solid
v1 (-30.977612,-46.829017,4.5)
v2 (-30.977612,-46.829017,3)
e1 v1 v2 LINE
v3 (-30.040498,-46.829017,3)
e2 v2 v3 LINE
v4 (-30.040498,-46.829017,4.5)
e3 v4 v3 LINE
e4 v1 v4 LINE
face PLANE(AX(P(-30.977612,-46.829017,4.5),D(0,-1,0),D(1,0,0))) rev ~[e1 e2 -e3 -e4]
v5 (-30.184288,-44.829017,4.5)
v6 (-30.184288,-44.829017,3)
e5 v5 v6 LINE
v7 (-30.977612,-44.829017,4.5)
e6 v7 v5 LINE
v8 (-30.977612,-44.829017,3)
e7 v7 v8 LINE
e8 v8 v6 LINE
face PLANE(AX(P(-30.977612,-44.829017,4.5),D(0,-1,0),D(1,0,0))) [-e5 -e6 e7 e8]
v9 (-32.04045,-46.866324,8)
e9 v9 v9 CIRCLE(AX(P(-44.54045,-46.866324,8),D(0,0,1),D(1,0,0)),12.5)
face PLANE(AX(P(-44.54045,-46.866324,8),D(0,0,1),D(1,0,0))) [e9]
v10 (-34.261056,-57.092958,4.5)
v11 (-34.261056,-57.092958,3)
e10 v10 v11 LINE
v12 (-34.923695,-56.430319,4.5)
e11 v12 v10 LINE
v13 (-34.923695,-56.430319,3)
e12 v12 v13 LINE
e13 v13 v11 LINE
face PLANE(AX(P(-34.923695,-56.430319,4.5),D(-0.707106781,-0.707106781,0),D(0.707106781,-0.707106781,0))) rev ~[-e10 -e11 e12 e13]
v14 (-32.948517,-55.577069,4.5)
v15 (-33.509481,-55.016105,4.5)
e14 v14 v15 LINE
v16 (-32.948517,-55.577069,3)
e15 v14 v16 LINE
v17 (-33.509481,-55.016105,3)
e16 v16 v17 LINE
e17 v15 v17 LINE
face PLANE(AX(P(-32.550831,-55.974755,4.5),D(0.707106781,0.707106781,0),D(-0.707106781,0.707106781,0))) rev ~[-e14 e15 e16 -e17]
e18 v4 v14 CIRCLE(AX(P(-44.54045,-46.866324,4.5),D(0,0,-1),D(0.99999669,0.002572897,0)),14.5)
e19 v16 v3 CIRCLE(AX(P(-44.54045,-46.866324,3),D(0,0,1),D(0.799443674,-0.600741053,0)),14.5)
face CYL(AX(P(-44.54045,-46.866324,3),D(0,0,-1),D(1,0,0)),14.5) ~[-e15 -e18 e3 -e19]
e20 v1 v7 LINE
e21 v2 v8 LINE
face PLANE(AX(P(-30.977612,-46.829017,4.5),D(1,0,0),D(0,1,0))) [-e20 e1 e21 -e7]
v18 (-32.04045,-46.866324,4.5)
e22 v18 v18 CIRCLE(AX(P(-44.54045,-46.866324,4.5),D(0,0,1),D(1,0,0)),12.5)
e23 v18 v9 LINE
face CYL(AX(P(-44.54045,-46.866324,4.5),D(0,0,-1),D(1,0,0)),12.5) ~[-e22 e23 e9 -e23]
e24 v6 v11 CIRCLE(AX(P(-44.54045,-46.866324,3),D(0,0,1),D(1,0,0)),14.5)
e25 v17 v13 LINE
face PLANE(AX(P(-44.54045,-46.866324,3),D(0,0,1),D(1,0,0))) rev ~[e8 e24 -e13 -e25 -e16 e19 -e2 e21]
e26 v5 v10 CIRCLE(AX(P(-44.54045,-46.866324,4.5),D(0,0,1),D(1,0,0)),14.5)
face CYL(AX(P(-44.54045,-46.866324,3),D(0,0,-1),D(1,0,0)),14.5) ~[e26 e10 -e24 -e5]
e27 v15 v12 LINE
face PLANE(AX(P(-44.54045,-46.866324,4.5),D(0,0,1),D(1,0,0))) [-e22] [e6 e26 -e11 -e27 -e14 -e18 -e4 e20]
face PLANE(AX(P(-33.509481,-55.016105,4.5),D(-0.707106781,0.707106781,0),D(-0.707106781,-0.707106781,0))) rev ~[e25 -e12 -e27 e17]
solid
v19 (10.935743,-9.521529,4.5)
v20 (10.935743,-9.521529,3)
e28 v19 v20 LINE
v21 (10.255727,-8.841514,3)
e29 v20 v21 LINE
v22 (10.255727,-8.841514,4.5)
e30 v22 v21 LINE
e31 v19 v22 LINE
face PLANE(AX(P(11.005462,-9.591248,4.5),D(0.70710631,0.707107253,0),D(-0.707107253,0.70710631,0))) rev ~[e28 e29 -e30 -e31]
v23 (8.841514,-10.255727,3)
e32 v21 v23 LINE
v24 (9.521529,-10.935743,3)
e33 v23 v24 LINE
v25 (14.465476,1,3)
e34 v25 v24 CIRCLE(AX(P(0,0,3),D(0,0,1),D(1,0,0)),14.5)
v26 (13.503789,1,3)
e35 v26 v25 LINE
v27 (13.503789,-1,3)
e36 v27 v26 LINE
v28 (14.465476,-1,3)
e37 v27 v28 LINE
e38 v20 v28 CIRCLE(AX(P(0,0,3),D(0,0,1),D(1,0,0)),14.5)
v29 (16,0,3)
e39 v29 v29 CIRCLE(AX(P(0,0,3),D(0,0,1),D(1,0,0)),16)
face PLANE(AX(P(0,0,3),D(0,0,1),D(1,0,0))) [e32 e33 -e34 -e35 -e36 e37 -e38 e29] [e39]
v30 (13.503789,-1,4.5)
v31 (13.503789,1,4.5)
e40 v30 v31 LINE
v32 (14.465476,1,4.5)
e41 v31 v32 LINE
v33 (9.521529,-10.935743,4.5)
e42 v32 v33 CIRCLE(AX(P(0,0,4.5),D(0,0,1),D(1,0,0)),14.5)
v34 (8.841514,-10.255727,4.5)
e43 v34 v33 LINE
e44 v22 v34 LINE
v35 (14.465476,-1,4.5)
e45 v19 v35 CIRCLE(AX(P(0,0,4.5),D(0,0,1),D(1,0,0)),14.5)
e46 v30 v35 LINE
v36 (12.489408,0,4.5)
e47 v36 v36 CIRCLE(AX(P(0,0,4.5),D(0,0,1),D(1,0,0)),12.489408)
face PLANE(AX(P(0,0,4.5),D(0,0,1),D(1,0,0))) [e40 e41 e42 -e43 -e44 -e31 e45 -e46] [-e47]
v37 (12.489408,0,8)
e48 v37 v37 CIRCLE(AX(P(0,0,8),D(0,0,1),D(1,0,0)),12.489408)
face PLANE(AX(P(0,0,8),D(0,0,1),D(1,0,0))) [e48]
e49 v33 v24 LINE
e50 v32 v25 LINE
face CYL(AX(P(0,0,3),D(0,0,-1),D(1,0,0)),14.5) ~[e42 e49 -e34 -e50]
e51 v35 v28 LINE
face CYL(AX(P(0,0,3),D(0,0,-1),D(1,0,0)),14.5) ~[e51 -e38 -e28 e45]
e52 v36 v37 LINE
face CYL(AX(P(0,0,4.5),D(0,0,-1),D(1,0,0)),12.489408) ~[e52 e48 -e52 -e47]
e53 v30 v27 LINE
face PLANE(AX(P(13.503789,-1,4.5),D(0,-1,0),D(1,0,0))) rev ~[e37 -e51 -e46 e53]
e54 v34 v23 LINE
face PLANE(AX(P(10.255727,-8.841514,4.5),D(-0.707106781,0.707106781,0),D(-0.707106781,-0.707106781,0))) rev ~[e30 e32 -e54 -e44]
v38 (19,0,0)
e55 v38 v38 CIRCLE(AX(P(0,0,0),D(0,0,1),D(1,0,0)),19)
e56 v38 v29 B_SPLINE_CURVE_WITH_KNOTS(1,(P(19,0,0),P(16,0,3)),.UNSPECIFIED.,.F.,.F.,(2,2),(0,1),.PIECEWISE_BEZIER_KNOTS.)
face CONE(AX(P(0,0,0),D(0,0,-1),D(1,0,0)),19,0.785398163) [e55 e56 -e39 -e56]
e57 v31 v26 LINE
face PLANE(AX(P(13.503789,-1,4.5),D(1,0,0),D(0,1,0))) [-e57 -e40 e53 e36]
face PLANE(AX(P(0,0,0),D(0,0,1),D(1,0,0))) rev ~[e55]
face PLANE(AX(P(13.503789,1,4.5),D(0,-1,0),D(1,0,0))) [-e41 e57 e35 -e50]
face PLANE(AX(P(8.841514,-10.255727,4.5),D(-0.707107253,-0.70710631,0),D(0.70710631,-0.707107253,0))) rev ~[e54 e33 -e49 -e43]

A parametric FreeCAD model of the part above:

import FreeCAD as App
import Part
import Sketcher
Q = App.Units.Quantity

doc = App.newDocument("Part")
params = doc.addObject("Spreadsheet::Sheet", "Params")
for row, (alias, value) in enumerate([
    ("sketch1_diameter", "38 mm"),
    ("sketch2_diameter", "32 mm"),
    ("sketch3_diameter", "29 mm"),
    ("pad1_length", "1.5 mm"),
    ("pad2_length", "3.5 mm"),
    ("sketch5_height", "2 mm"),
    ("sketch5_length", "1.999999 mm"),
    ("pocket1_length", "1.5 mm"),
    ("sketch6_diameter", "29 mm"),
    ("pad3_length", "1.5 mm"),
    ("sketch7_diameter", "25 mm"),
    ("pad4_length", "3.5 mm"),
    ("sketch8_height", "2 mm"),
    ("sketch8_length", "2.000001 mm"),
    ("pocket2_length", "1.5 mm"),
], start=1):
    params.set(f"A{row}", alias)
    params.set(f"B{row}", "=" + value)
    params.setAlias(f"B{row}", alias)

body = doc.addObject("PartDesign::Body", "Body")

sketch1 = body.newObject("Sketcher::SketchObject", "Sketch")
sketch1.AttachmentSupport = (doc.getObject("XY_Plane"), [""])
sketch1.MapMode = "FlatFace"
sketch1.addGeometry(Part.Circle(App.Vector(0, 0, 0), App.Vector(0, 0, 1), 19), False)
sketch1.addConstraint(Sketcher.Constraint("Coincident", 0, 3, -1, 1))
sketch1.addConstraint(Sketcher.Constraint("Diameter", 0, Q("38 mm")))
sketch1.setExpression("Constraints[1]", "Params.sketch1_diameter")

sketch2 = body.newObject("Sketcher::SketchObject", "Sketch001")
sketch2.AttachmentSupport = (doc.getObject("XY_Plane"), [""])
sketch2.MapMode = "FlatFace"
sketch2.AttachmentOffset = App.Placement(App.Vector(0, 0, 3), App.Rotation())
sketch2.addGeometry(Part.Circle(App.Vector(0, 0, 0), App.Vector(0, 0, 1), 16), False)
sketch2.addConstraint(Sketcher.Constraint("Coincident", 0, 3, -1, 1))
sketch2.addConstraint(Sketcher.Constraint("Diameter", 0, Q("32 mm")))
sketch2.setExpression("Constraints[1]", "Params.sketch2_diameter")

additiveloft = body.newObject("PartDesign::AdditiveLoft", "AdditiveLoft")
additiveloft.Profile = sketch1
additiveloft.Sections = [sketch2]

sketch3 = body.newObject("Sketcher::SketchObject", "Sketch002")
sketch3.AttachmentSupport = (doc.getObject("XY_Plane"), [""])
sketch3.MapMode = "FlatFace"
sketch3.AttachmentOffset = App.Placement(App.Vector(0, 0, 3), App.Rotation())
sketch3.addGeometry(Part.Circle(App.Vector(0, 0, 0), App.Vector(0, 0, 1), 14), False)
sketch3.addConstraint(Sketcher.Constraint("Coincident", 0, 3, -1, 1))
sketch3.addConstraint(Sketcher.Constraint("Diameter", 0, Q("29 mm")))
sketch3.setExpression("Constraints[1]", "Params.sketch3_diameter")
pad1 = body.newObject("PartDesign::Pad", "Pad")
pad1.Profile = sketch3
pad1.setExpression("Length", "Params.pad1_length")

sketch4 = body.newObject("Sketcher::SketchObject", "Sketch003")
sketch4.AttachmentSupport = (doc.getObject("XY_Plane"), [""])
sketch4.MapMode = "FlatFace"
sketch4.AttachmentOffset = App.Placement(App.Vector(0, 0, 4.5), App.Rotation())
sketch4.addGeometry(Part.Circle(App.Vector(0, 0, 0), App.Vector(0, 0, 1), 12), False)
sketch4.addConstraint(Sketcher.Constraint("Coincident", 0, 3, -1, 1))
sketch4.addConstraint(Sketcher.Constraint("Diameter", 0, Q("24.978816 mm")))
pad2 = body.newObject("PartDesign::Pad", "Pad001")
pad2.Profile = sketch4
pad2.setExpression("Length", "Params.pad2_length")

sketch5 = body.newObject("Sketcher::SketchObject", "Sketch004")
sketch5.AttachmentSupport = (doc.getObject("XY_Plane"), [""])
sketch5.MapMode = "FlatFace"
sketch5.AttachmentOffset = App.Placement(App.Vector(0, 0, 4.5), App.Rotation())
sketch5.addGeometry(Part.LineSegment(App.Vector(11, -9.6, 0), App.Vector(10.3, -8.8, 0)), False)
sketch5.addGeometry(Part.LineSegment(App.Vector(10.3, -8.8, 0), App.Vector(8.8, -10.3, 0)), False)
sketch5.addGeometry(Part.LineSegment(App.Vector(8.8, -10.3, 0), App.Vector(9.6, -11, 0)), False)
sketch5.addGeometry(Part.LineSegment(App.Vector(9.6, -11, 0), App.Vector(11, -9.6, 0)), False)
sketch5.addGeometry(Part.LineSegment(App.Vector(13.5, 1, 0), App.Vector(13.5, -1, 0)), False)
sketch5.addGeometry(Part.LineSegment(App.Vector(13.5, -1, 0), App.Vector(14.6, -1, 0)), False)
sketch5.addGeometry(Part.LineSegment(App.Vector(14.6, -1, 0), App.Vector(14.6, 1, 0)), False)
sketch5.addGeometry(Part.LineSegment(App.Vector(14.6, 1, 0), App.Vector(13.5, 1, 0)), False)
sketch5.addConstraint(Sketcher.Constraint("Coincident", 0, 2, 1, 1))
sketch5.addConstraint(Sketcher.Constraint("Coincident", 1, 2, 2, 1))
sketch5.addConstraint(Sketcher.Constraint("Coincident", 2, 2, 3, 1))
sketch5.addConstraint(Sketcher.Constraint("Coincident", 3, 2, 0, 1))
sketch5.addConstraint(Sketcher.Constraint("Coincident", 4, 2, 5, 1))
sketch5.addConstraint(Sketcher.Constraint("Coincident", 5, 2, 6, 1))
sketch5.addConstraint(Sketcher.Constraint("Coincident", 6, 2, 7, 1))
sketch5.addConstraint(Sketcher.Constraint("Coincident", 7, 2, 4, 1))
sketch5.addConstraint(Sketcher.Constraint("Vertical", 4))
sketch5.addConstraint(Sketcher.Constraint("Horizontal", 5))
sketch5.addConstraint(Sketcher.Constraint("Vertical", 6))
sketch5.addConstraint(Sketcher.Constraint("Horizontal", 7))
sketch5.addConstraint(Sketcher.Constraint("Perpendicular", 0, 1))
sketch5.addConstraint(Sketcher.Constraint("Perpendicular", 1, 2))
sketch5.addConstraint(Sketcher.Constraint("Perpendicular", 2, 3))
sketch5.addConstraint(Sketcher.Constraint("DistanceY", 4, 2, 4, 1, Q("2 mm")))
sketch5.addConstraint(Sketcher.Constraint("Angle", 1, Q("-135 deg")))
sketch5.addConstraint(Sketcher.Constraint("Distance", 1, Q("1.999999 mm")))
sketch5.addConstraint(Sketcher.Constraint("DistanceY", 4, 2, -1, 1, Q("1 mm")))
sketch5.addConstraint(Sketcher.Constraint("DistanceX", 5, 1, 5, 2, Q("1.060285 mm")))
sketch5.addConstraint(Sketcher.Constraint("DistanceX", -1, 1, 4, 2, Q("13.503789 mm")))
sketch5.addConstraint(Sketcher.Constraint("DistanceX", 2, 2, 0, 2, Q("0.664479 mm")))
sketch5.addConstraint(Sketcher.Constraint("DistanceX", 0, 2, 4, 2, Q("3.248062 mm")))
sketch5.addConstraint(Sketcher.Constraint("DistanceY", 0, 2, -1, 1, Q("8.841514 mm")))
sketch5.setExpression("Constraints[15]", "Params.sketch5_height")
sketch5.setExpression("Constraints[17]", "Params.sketch5_length")
pocket1 = body.newObject("PartDesign::Pocket", "Pocket")
pocket1.Profile = sketch5
pocket1.setExpression("Length", "Params.pocket1_length")
body2 = doc.addObject("PartDesign::Body", "Body001")

sketch6 = body2.newObject("Sketcher::SketchObject", "Sketch005")
sketch6.AttachmentSupport = (doc.getObject("XY_Plane001"), [""])
sketch6.MapMode = "FlatFace"
sketch6.AttachmentOffset = App.Placement(App.Vector(0, 0, 3), App.Rotation())
sketch6.addGeometry(Part.Circle(App.Vector(-45, -47, 0), App.Vector(0, 0, 1), 14), False)
sketch6.addConstraint(Sketcher.Constraint("Diameter", 0, Q("29 mm")))
sketch6.addConstraint(Sketcher.Constraint("DistanceX", 0, 3, -1, 1, Q("44.54045 mm")))
sketch6.addConstraint(Sketcher.Constraint("DistanceY", 0, 3, -1, 1, Q("46.866324 mm")))
sketch6.setExpression("Constraints[0]", "Params.sketch6_diameter")
pad3 = body2.newObject("PartDesign::Pad", "Pad002")
pad3.Profile = sketch6
pad3.setExpression("Length", "Params.pad3_length")

sketch7 = body2.newObject("Sketcher::SketchObject", "Sketch006")
sketch7.AttachmentSupport = (doc.getObject("XY_Plane001"), [""])
sketch7.MapMode = "FlatFace"
sketch7.AttachmentOffset = App.Placement(App.Vector(0, 0, 4.5), App.Rotation())
sketch7.addGeometry(Part.Circle(App.Vector(-45, -47, 0), App.Vector(0, 0, 1), 12), False)
sketch7.addConstraint(Sketcher.Constraint("Diameter", 0, Q("25 mm")))
sketch7.addConstraint(Sketcher.Constraint("DistanceX", 0, 3, -1, 1, Q("44.54045 mm")))
sketch7.addConstraint(Sketcher.Constraint("DistanceY", 0, 3, -1, 1, Q("46.866324 mm")))
sketch7.setExpression("Constraints[0]", "Params.sketch7_diameter")
pad4 = body2.newObject("PartDesign::Pad", "Pad003")
pad4.Profile = sketch7
pad4.setExpression("Length", "Params.pad4_length")

sketch8 = body2.newObject("Sketcher::SketchObject", "Sketch007")
sketch8.AttachmentSupport = (doc.getObject("XY_Plane001"), [""])
sketch8.MapMode = "FlatFace"
sketch8.AttachmentOffset = App.Placement(App.Vector(0, 0, 4.5), App.Rotation())
sketch8.addGeometry(Part.LineSegment(App.Vector(-32.6, -56, 0), App.Vector(-33.5, -55, 0)), False)
sketch8.addGeometry(Part.LineSegment(App.Vector(-33.5, -55, 0), App.Vector(-34.9, -56.4, 0)), False)
sketch8.addGeometry(Part.LineSegment(App.Vector(-34.9, -56.4, 0), App.Vector(-34, -57.4, 0)), False)
sketch8.addGeometry(Part.LineSegment(App.Vector(-34, -57.4, 0), App.Vector(-32.6, -56, 0)), False)
sketch8.addGeometry(Part.LineSegment(App.Vector(-31, -44.8, 0), App.Vector(-31, -46.8, 0)), False)
sketch8.addGeometry(Part.LineSegment(App.Vector(-31, -46.8, 0), App.Vector(-29.6, -46.8, 0)), False)
sketch8.addGeometry(Part.LineSegment(App.Vector(-29.6, -46.8, 0), App.Vector(-29.6, -44.8, 0)), False)
sketch8.addGeometry(Part.LineSegment(App.Vector(-29.6, -44.8, 0), App.Vector(-31, -44.8, 0)), False)
sketch8.addConstraint(Sketcher.Constraint("Coincident", 0, 2, 1, 1))
sketch8.addConstraint(Sketcher.Constraint("Coincident", 1, 2, 2, 1))
sketch8.addConstraint(Sketcher.Constraint("Coincident", 2, 2, 3, 1))
sketch8.addConstraint(Sketcher.Constraint("Coincident", 3, 2, 0, 1))
sketch8.addConstraint(Sketcher.Constraint("Coincident", 4, 2, 5, 1))
sketch8.addConstraint(Sketcher.Constraint("Coincident", 5, 2, 6, 1))
sketch8.addConstraint(Sketcher.Constraint("Coincident", 6, 2, 7, 1))
sketch8.addConstraint(Sketcher.Constraint("Coincident", 7, 2, 4, 1))
sketch8.addConstraint(Sketcher.Constraint("Vertical", 4))
sketch8.addConstraint(Sketcher.Constraint("Horizontal", 5))
sketch8.addConstraint(Sketcher.Constraint("Vertical", 6))
sketch8.addConstraint(Sketcher.Constraint("Horizontal", 7))
sketch8.addConstraint(Sketcher.Constraint("Perpendicular", 0, 1))
sketch8.addConstraint(Sketcher.Constraint("Perpendicular", 1, 2))
sketch8.addConstraint(Sketcher.Constraint("Perpendicular", 2, 3))
sketch8.addConstraint(Sketcher.Constraint("DistanceY", 4, 2, 4, 1, Q("2 mm")))
sketch8.addConstraint(Sketcher.Constraint("Angle", 0, Q("135 deg")))
sketch8.addConstraint(Sketcher.Constraint("Distance", 1, Q("2.000001 mm")))
sketch8.addConstraint(Sketcher.Constraint("DistanceY", 1, 2, 4, 2, Q("9.601302 mm")))
sketch8.addConstraint(Sketcher.Constraint("DistanceX", 5, 1, 5, 2, Q("1.355736 mm")))
sketch8.addConstraint(Sketcher.Constraint("DistanceX", 0, 2, -1, 1, Q("33.509481 mm")))
sketch8.addConstraint(Sketcher.Constraint("DistanceY", 1, 2, -1, 1, Q("56.430319 mm")))
sketch8.addConstraint(Sketcher.Constraint("DistanceY", 2, 2, -1, 1, Q("57.388969 mm")))
sketch8.addConstraint(Sketcher.Constraint("DistanceX", 0, 2, 4, 2, Q("2.531869 mm")))
sketch8.setExpression("Constraints[15]", "Params.sketch8_height")
sketch8.setExpression("Constraints[17]", "Params.sketch8_length")
pocket2 = body2.newObject("PartDesign::Pocket", "Pocket001")
pocket2.Profile = sketch8
pocket2.setExpression("Length", "Params.pocket2_length")

doc.recompute()
